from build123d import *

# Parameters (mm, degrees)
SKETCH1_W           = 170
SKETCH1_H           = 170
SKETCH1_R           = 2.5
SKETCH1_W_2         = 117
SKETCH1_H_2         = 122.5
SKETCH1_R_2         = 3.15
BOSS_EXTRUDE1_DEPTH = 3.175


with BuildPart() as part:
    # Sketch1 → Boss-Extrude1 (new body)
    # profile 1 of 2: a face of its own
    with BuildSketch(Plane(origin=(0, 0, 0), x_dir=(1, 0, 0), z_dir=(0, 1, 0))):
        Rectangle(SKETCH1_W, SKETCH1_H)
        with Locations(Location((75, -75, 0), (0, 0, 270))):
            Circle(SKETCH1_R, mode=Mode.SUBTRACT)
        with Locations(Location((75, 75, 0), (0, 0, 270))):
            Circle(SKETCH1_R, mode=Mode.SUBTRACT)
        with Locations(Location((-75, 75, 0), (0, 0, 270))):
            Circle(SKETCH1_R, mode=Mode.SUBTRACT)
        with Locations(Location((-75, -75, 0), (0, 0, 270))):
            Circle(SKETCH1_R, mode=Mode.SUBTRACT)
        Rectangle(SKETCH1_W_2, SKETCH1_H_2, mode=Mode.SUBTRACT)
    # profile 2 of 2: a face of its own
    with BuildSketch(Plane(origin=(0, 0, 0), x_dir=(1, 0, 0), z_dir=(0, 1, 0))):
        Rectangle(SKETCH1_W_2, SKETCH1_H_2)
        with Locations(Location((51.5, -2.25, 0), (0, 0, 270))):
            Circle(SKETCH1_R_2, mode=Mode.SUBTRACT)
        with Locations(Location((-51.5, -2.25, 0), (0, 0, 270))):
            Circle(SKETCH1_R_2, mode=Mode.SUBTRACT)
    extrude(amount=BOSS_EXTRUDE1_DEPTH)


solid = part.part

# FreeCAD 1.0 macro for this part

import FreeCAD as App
import Part
import Sketcher
from FreeCAD import Vector

doc = App.newDocument("Part")
params = doc.addObject("Spreadsheet::Sheet", "Params")
for row, (alias, value) in enumerate([
    ("sketch1_diameter", "5 mm"),
    ("sketch1_diameter2", "6.3 mm"),
    ("sketch1_width", "170 mm"),
    ("pad1_length", "3.175 mm"),
], start=1):
    params.set(f"A{row}", alias)
    params.set(f"B{row}", "=" + value)
    params.setAlias(f"B{row}", alias)

body = doc.addObject("PartDesign::Body", "Body")

sketch1 = body.newObject("Sketcher::SketchObject", "Sketch")
sketch1.AttachmentSupport = (doc.getObject("XZ_Plane"), [""])
sketch1.MapMode = "FlatFace"
sketch1.addGeometry(Part.LineSegment(Vector(-85, -85, 0), Vector(-85, 85, 0)), False)
sketch1.addGeometry(Part.LineSegment(Vector(-85, 85, 0), Vector(85, 85, 0)), False)
sketch1.addGeometry(Part.LineSegment(Vector(85, 85, 0), Vector(85, -85, 0)), False)
sketch1.addGeometry(Part.LineSegment(Vector(85, -85, 0), Vector(-85, -85, 0)), False)
sketch1.addGeometry(Part.Circle(Vector(-75, 75, 0), Vector(0, 0, 1), 2.5), False)
sketch1.addGeometry(Part.Circle(Vector(75, 75, 0), Vector(0, 0, 1), 2.5), False)
sketch1.addGeometry(Part.Circle(Vector(-75, -75, 0), Vector(0, 0, 1), 2.5), False)
sketch1.addGeometry(Part.Circle(Vector(75, -75, 0), Vector(0, 0, 1), 2.5), False)
sketch1.addGeometry(Part.Circle(Vector(-51.5, 2.2, 0), Vector(0, 0, 1), 3.1), False)
sketch1.addGeometry(Part.Circle(Vector(51.5, 2.2, 0), Vector(0, 0, 1), 3.1), False)
sketch1.addConstraint(Sketcher.Constraint("Coincident", 0, 2, 1, 1))
sketch1.addConstraint(Sketcher.Constraint("Coincident", 1, 2, 2, 1))
sketch1.addConstraint(Sketcher.Constraint("Coincident", 2, 2, 3, 1))
sketch1.addConstraint(Sketcher.Constraint("Coincident", 3, 2, 0, 1))
sketch1.addConstraint(Sketcher.Constraint("Vertical", 0))
sketch1.addConstraint(Sketcher.Constraint("Horizontal", 1))
sketch1.addConstraint(Sketcher.Constraint("Vertical", 2))
sketch1.addConstraint(Sketcher.Constraint("Horizontal", 3))
sketch1.addConstraint(Sketcher.Constraint("Equal", 4, 5))
sketch1.addConstraint(Sketcher.Constraint("Equal", 5, 6))
sketch1.addConstraint(Sketcher.Constraint("Equal", 6, 7))
sketch1.addConstraint(Sketcher.Constraint("Equal", 8, 9))
sketch1.addConstraint(Sketcher.Constraint("Symmetric", 5, 3, 6, 3, -1, 1))
sketch1.addConstraint(Sketcher.Constraint("Symmetric", 4, 3, 7, 3, -1, 1))
sketch1.addConstraint(Sketcher.Constraint("Symmetric", 0, 2, 2, 2, -1, 1))
sketch1.addConstraint(Sketcher.Constraint("Symmetric", 4, 3, 5, 3, -2))
sketch1.addConstraint(Sketcher.Constraint("Symmetric", 8, 3, 9, 3, -2))
sketch1.addConstraint(Sketcher.Constraint("Equal", 3, 0))
sketch1.addConstraint(Sketcher.Constraint("Diameter", 4, 5.0))
sketch1.addConstraint(Sketcher.Constraint("Diameter", 8, 6.3))
sketch1.addConstraint(Sketcher.Constraint("DistanceX", 1, 1, 1, 2, 170.0))
sketch1.addConstraint(Sketcher.Constraint("DistanceX", 4, 3, -1, 1, 75.0))
sketch1.addConstraint(Sketcher.Constraint("DistanceY", -1, 1, 4, 3, 75.0))
sketch1.addConstraint(Sketcher.Constraint("DistanceX", 8, 3, 9, 3, 103.0))
sketch1.addConstraint(Sketcher.Constraint("DistanceY", -1, 1, 8, 3, 2.25))
sketch1.setExpression("Constraints[18]", "Params.sketch1_diameter")
sketch1.setExpression("Constraints[19]", "Params.sketch1_diameter2")
sketch1.setExpression("Constraints[20]", "Params.sketch1_width")
pad1 = body.newObject("PartDesign::Pad", "Pad")
pad1.Profile = sketch1
pad1.setExpression("Length", "Params.pad1_length")
pad1.Reversed = True

doc.recompute()
